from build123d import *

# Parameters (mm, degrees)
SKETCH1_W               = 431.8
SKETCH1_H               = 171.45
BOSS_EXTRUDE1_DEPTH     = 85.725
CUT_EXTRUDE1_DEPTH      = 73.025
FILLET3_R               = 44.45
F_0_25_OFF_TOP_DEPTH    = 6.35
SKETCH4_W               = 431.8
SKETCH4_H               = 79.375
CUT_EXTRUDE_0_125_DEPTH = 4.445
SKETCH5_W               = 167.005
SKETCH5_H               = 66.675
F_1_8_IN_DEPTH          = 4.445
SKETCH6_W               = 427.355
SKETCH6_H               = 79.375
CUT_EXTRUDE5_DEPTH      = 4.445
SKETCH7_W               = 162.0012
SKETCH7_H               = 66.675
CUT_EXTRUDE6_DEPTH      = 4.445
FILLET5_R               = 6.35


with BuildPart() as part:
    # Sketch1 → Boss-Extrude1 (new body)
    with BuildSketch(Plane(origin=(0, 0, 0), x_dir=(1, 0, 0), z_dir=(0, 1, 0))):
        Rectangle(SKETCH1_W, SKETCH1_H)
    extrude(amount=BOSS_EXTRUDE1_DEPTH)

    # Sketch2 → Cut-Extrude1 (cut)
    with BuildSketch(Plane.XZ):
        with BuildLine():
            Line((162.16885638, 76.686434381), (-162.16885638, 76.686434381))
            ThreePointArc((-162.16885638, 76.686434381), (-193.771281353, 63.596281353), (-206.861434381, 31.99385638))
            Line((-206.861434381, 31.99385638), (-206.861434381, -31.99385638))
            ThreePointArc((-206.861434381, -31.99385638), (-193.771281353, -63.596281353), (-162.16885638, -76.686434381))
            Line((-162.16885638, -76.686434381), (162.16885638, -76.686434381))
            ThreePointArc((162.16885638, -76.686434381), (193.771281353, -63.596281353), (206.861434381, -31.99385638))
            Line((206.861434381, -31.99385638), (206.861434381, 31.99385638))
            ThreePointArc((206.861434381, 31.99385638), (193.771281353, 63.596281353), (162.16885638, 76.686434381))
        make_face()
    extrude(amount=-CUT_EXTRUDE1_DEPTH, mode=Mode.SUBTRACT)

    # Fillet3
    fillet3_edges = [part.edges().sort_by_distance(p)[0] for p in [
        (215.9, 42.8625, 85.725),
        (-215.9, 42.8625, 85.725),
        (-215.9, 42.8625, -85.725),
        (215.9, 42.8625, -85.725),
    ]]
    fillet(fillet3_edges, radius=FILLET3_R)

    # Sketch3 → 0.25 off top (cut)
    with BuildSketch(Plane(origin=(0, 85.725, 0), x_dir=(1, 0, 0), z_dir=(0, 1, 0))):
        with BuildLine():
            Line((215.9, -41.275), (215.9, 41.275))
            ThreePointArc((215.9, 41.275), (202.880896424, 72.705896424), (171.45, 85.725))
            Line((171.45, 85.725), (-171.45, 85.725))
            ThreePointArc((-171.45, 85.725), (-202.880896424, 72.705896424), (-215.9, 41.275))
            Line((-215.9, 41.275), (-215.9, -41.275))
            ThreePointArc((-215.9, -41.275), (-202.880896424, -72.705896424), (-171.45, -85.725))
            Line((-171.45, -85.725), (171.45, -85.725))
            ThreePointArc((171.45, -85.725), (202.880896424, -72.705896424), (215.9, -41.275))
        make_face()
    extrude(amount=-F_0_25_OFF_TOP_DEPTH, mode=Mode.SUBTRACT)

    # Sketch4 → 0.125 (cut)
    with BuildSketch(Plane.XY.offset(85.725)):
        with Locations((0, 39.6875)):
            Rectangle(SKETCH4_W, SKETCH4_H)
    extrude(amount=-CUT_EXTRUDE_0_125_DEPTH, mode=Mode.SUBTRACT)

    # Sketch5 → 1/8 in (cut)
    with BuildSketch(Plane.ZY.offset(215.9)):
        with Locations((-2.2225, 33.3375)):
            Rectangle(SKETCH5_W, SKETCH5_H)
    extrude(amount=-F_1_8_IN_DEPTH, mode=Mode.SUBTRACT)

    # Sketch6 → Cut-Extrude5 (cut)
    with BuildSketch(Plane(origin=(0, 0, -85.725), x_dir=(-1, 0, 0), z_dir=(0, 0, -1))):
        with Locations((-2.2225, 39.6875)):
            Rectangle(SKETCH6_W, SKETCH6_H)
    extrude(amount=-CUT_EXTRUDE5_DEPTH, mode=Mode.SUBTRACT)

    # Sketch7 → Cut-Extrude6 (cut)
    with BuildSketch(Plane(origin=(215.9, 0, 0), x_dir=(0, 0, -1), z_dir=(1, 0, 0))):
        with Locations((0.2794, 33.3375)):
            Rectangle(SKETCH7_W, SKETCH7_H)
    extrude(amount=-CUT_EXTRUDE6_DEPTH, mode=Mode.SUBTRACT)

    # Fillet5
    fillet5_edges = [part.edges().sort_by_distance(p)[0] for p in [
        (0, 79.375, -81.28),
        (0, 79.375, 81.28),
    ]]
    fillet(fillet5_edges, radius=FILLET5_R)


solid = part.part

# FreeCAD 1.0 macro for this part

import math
import FreeCAD as App
import Part
import Sketcher
Q = App.Units.Quantity


def edges_at(feature, points):
    """Names of the edges that pass closest to the given points."""
    edges = feature.Shape.Edges
    near = lambda p: min(range(len(edges)), key=lambda i: edges[i].distToShape(Part.Vertex(*p))[0])
    return sorted({f"Edge{near(p) + 1}" for p in points})

doc = App.newDocument("Part")
body = doc.addObject("PartDesign::Body", "Body")

# Sketch on XZ plane
sketch1 = body.newObject("Sketcher::SketchObject", "Sketch")
sketch1.AttachmentSupport = (doc.getObject("XZ_Plane"), [""])
sketch1.MapMode = "FlatFace"
sketch1.addGeometry([
    Part.LineSegment(App.Vector(-216, -86, 0), App.Vector(-216, 86, 0)),
    Part.LineSegment(App.Vector(-216, 86, 0), App.Vector(216, 86, 0)),
    Part.LineSegment(App.Vector(216, 86, 0), App.Vector(216, -86, 0)),
    Part.LineSegment(App.Vector(216, -86, 0), App.Vector(-216, -86, 0)),
], False)
sketch1.addConstraint([
    Sketcher.Constraint("Coincident", 0, 2, 1, 1),
    Sketcher.Constraint("Coincident", 1, 2, 2, 1),
    Sketcher.Constraint("Coincident", 2, 2, 3, 1),
    Sketcher.Constraint("Coincident", 3, 2, 0, 1),
    Sketcher.Constraint("Vertical", 0),
    Sketcher.Constraint("Horizontal", 1),
    Sketcher.Constraint("Vertical", 2),
    Sketcher.Constraint("Horizontal", 3),
    Sketcher.Constraint("Symmetric", 0, 2, 2, 2, -1, 1),
    Sketcher.Constraint("DistanceX", 1, 1, 1, 2, Q("17 in")),
    Sketcher.Constraint("DistanceY", 0, 1, 0, 2, Q("6.75 in")),
])
pad1 = body.newObject("PartDesign::Pad", "Pad")
pad1.Profile = sketch1
pad1.Length = Q("3.375 in")
pad1.Reversed = True

# Sketch on XZ plane
sketch2 = body.newObject("Sketcher::SketchObject", "Sketch001")
sketch2.AttachmentSupport = (doc.getObject("XZ_Plane"), [""])
sketch2.MapMode = "FlatFace"
sketch2.addGeometry([
    Part.LineSegment(App.Vector(162, 77, 0), App.Vector(-162, 77, 0)),  # 0
    Part.ArcOfCircle(Part.Circle(App.Vector(-162, 32, 0), App.Vector(0, 0, 1), 45), math.radians(90), math.radians(180)),  # 1
    Part.LineSegment(App.Vector(-207, 32, 0), App.Vector(-207, -32, 0)),  # 2
    Part.ArcOfCircle(Part.Circle(App.Vector(-162, -32, 0), App.Vector(0, 0, 1), 45), math.radians(-180), math.radians(-90)),  # 3
    Part.LineSegment(App.Vector(-162, -77, 0), App.Vector(162, -77, 0)),  # 4
    Part.ArcOfCircle(Part.Circle(App.Vector(162, -32, 0), App.Vector(0, 0, 1), 45), math.radians(-90), math.radians(0)),  # 5
    Part.LineSegment(App.Vector(207, -32, 0), App.Vector(207, 32, 0)),  # 6
    Part.ArcOfCircle(Part.Circle(App.Vector(162, 32, 0), App.Vector(0, 0, 1), 45), math.radians(0), math.radians(90)),  # 7
], False)
sketch2.addConstraint([
    Sketcher.Constraint("Tangent", 0, 2, 1, 1),
    Sketcher.Constraint("Tangent", 1, 2, 2, 1),
    Sketcher.Constraint("Tangent", 2, 2, 3, 1),
    Sketcher.Constraint("Tangent", 3, 2, 4, 1),
    Sketcher.Constraint("Tangent", 4, 2, 5, 1),
    Sketcher.Constraint("Tangent", 5, 2, 6, 1),
    Sketcher.Constraint("Tangent", 6, 2, 7, 1),
    Sketcher.Constraint("Tangent", 7, 2, 0, 1),
    Sketcher.Constraint("Horizontal", 0),
    Sketcher.Constraint("Vertical", 2),
    Sketcher.Constraint("Horizontal", 4),
    Sketcher.Constraint("Vertical", 6),
    Sketcher.Constraint("Equal", 1, 3),
    Sketcher.Constraint("Equal", 3, 5),
    Sketcher.Constraint("Equal", 5, 7),
    Sketcher.Constraint("Symmetric", 1, 3, 5, 3, -1, 1),
    Sketcher.Constraint("Radius", 1, 44.692578),
    Sketcher.Constraint("DistanceX", 0, 2, 0, 1, 324.337713),
    Sketcher.Constraint("DistanceY", 2, 2, 2, 1, 63.987713),
])
pocket1 = body.newObject("PartDesign::Pocket", "Pocket")
pocket1.Profile = sketch2
pocket1.Length = Q("2.875 in")
doc.recompute()

fillet = body.newObject("PartDesign::Fillet", "Fillet")
fillet.Base = (pocket1, edges_at(pocket1, [
    (215.9, 42.862, 85.725),
    (-215.9, 42.862, 85.725),
    (-215.9, 42.862, -85.725),
    (215.9, 42.862, -85.725),
]))
fillet.Radius = Q("1.75 in")

# Sketch on XZ plane
sketch3 = body.newObject("Sketcher::SketchObject", "Sketch002")
sketch3.AttachmentSupport = (doc.getObject("XZ_Plane"), [""])
sketch3.MapMode = "FlatFace"
sketch3.AttachmentOffset = App.Placement(App.Vector(0, 0, -3.375 * 25.4), App.Rotation())
sketch3.addGeometry([
    Part.LineSegment(App.Vector(216, 41, 0), App.Vector(216, -41, 0)),  # 0
    Part.ArcOfCircle(Part.Circle(App.Vector(171, -41, 0), App.Vector(0, 0, 1), 44), math.radians(-90), math.radians(0)),  # 1
    Part.LineSegment(App.Vector(171, -86, 0), App.Vector(-171, -86, 0)),  # 2
    Part.ArcOfCircle(Part.Circle(App.Vector(-171, -41, 0), App.Vector(0, 0, 1), 44), math.radians(180), math.radians(270)),  # 3
    Part.LineSegment(App.Vector(-216, -41, 0), App.Vector(-216, 41, 0)),  # 4
    Part.ArcOfCircle(Part.Circle(App.Vector(-171, 41, 0), App.Vector(0, 0, 1), 44), math.radians(90), math.radians(180)),  # 5
    Part.LineSegment(App.Vector(-171, 86, 0), App.Vector(171, 86, 0)),  # 6
    Part.ArcOfCircle(Part.Circle(App.Vector(171, 41, 0), App.Vector(0, 0, 1), 44), math.radians(0), math.radians(90)),  # 7
], False)
sketch3.addConstraint([
    Sketcher.Constraint("Tangent", 0, 2, 1, 2),
    Sketcher.Constraint("Tangent", 1, 1, 2, 1),
    Sketcher.Constraint("Tangent", 2, 2, 3, 2),
    Sketcher.Constraint("Tangent", 3, 1, 4, 1),
    Sketcher.Constraint("Tangent", 4, 2, 5, 2),
    Sketcher.Constraint("Tangent", 5, 1, 6, 1),
    Sketcher.Constraint("Tangent", 6, 2, 7, 2),
    Sketcher.Constraint("Tangent", 7, 1, 0, 1),
    Sketcher.Constraint("Vertical", 0),
    Sketcher.Constraint("Horizontal", 2),
    Sketcher.Constraint("Vertical", 4),
    Sketcher.Constraint("Horizontal", 6),
    Sketcher.Constraint("Equal", 1, 3),
    Sketcher.Constraint("Equal", 3, 5),
    Sketcher.Constraint("Equal", 5, 7),
    Sketcher.Constraint("Symmetric", 1, 3, 5, 3, -1, 1),
    Sketcher.Constraint("Radius", 1, Q("1.75 in")),
    Sketcher.Constraint("DistanceX", 2, 2, 2, 1, Q("13.5 in")),
    Sketcher.Constraint("DistanceY", 1, 1, 7, 3, Q("5 in")),
])
pocket2 = body.newObject("PartDesign::Pocket", "Pocket001")
pocket2.Profile = sketch3
pocket2.Length = Q("0.25 in")
pocket2.Reversed = True

# Sketch on XY plane
sketch4 = body.newObject("Sketcher::SketchObject", "Sketch003")
sketch4.AttachmentSupport = (doc.getObject("XY_Plane"), [""])
sketch4.MapMode = "FlatFace"
sketch4.AttachmentOffset = App.Placement(App.Vector(0, 0, 3.375 * 25.4), App.Rotation())
sketch4.addGeometry([
    Part.LineSegment(App.Vector(-216, 79, 0), App.Vector(-216, 0, 0)),
    Part.LineSegment(App.Vector(-216, 0, 0), App.Vector(216, 0, 0)),
    Part.LineSegment(App.Vector(216, 0, 0), App.Vector(216, 79, 0)),
    Part.LineSegment(App.Vector(216, 79, 0), App.Vector(-216, 79, 0)),
], False)
sketch4.addConstraint([
    Sketcher.Constraint("Coincident", 0, 2, 1, 1),
    Sketcher.Constraint("Coincident", 1, 2, 2, 1),
    Sketcher.Constraint("Coincident", 2, 2, 3, 1),
    Sketcher.Constraint("Coincident", 3, 2, 0, 1),
    Sketcher.Constraint("Vertical", 0),
    Sketcher.Constraint("Horizontal", 1),
    Sketcher.Constraint("Vertical", 2),
    Sketcher.Constraint("Horizontal", 3),
    Sketcher.Constraint("Symmetric", 0, 2, 1, 2, -1, 1),
    Sketcher.Constraint("DistanceX", 1, 1, 1, 2, Q("17 in")),
    Sketcher.Constraint("DistanceY", 0, 2, 0, 1, Q("3.125 in")),
])
pocket3 = body.newObject("PartDesign::Pocket", "Pocket002")
pocket3.Profile = sketch4
pocket3.Length = Q("0.175 in")

# Sketch on YZ plane
sketch5 = body.newObject("Sketcher::SketchObject", "Sketch004")
sketch5.AttachmentSupport = (doc.getObject("YZ_Plane"), [""])
sketch5.MapMode = "FlatFace"
sketch5.AttachmentOffset = App.Placement(App.Vector(0, 0, -8.5 * 25.4), App.Rotation())
sketch5.addGeometry([
    Part.LineSegment(App.Vector(67, -86, 0), App.Vector(0, -86, 0)),
    Part.LineSegment(App.Vector(0, -86, 0), App.Vector(0, 81, 0)),
    Part.LineSegment(App.Vector(0, 81, 0), App.Vector(67, 81, 0)),
    Part.LineSegment(App.Vector(67, 81, 0), App.Vector(67, -86, 0)),
], False)
sketch5.addConstraint([
    Sketcher.Constraint("Coincident", 0, 2, 1, 1),
    Sketcher.Constraint("Coincident", 1, 2, 2, 1),
    Sketcher.Constraint("Coincident", 2, 2, 3, 1),
    Sketcher.Constraint("Coincident", 3, 2, 0, 1),
    Sketcher.Constraint("Horizontal", 0),
    Sketcher.Constraint("Vertical", 1),
    Sketcher.Constraint("Horizontal", 2),
    Sketcher.Constraint("Vertical", 3),
    Sketcher.Constraint("PointOnObject", 0, 2, -2),
    Sketcher.Constraint("DistanceY", -1, 1, 1, 2, Q("3.2 in")),
    Sketcher.Constraint("DistanceX", 0, 2, 0, 1, Q("2.625 in")),
    Sketcher.Constraint("DistanceY", 1, 1, 1, 2, Q("6.575 in")),
])
pocket4 = body.newObject("PartDesign::Pocket", "Pocket003")
pocket4.Profile = sketch5
pocket4.Length = Q("0.175 in")
pocket4.Reversed = True

# Sketch on XY plane
sketch6 = body.newObject("Sketcher::SketchObject", "Sketch005")
sketch6.AttachmentSupport = (doc.getObject("XY_Plane"), [""])
sketch6.MapMode = "FlatFace"
sketch6.AttachmentOffset = App.Placement(App.Vector(0, 0, -3.375 * 25.4), App.Rotation())
sketch6.addGeometry([
    Part.LineSegment(App.Vector(216, 79, 0), App.Vector(216, 0, 0)),
    Part.LineSegment(App.Vector(216, 0, 0), App.Vector(-211, 0, 0)),
    Part.LineSegment(App.Vector(-211, 0, 0), App.Vector(-211, 79, 0)),
    Part.LineSegment(App.Vector(-211, 79, 0), App.Vector(216, 79, 0)),
], False)
sketch6.addConstraint([
    Sketcher.Constraint("Coincident", 0, 2, 1, 1),
    Sketcher.Constraint("Coincident", 1, 2, 2, 1),
    Sketcher.Constraint("Coincident", 2, 2, 3, 1),
    Sketcher.Constraint("Coincident", 3, 2, 0, 1),
    Sketcher.Constraint("Vertical", 0),
    Sketcher.Constraint("Horizontal", 1),
    Sketcher.Constraint("Vertical", 2),
    Sketcher.Constraint("Horizontal", 3),
    Sketcher.Constraint("PointOnObject", 0, 2, -1),
    Sketcher.Constraint("DistanceX", -1, 1, 0, 2, Q("8.5 in")),
    Sketcher.Constraint("DistanceX", 1, 2, 1, 1, Q("16.825 in")),
    Sketcher.Constraint("DistanceY", 0, 2, 0, 1, Q("3.125 in")),
])
pocket5 = body.newObject("PartDesign::Pocket", "Pocket004")
pocket5.Profile = sketch6
pocket5.Length = Q("0.175 in")
pocket5.Reversed = True

# Sketch on YZ plane
sketch7 = body.newObject("Sketcher::SketchObject", "Sketch006")
sketch7.AttachmentSupport = (doc.getObject("YZ_Plane"), [""])
sketch7.MapMode = "FlatFace"
sketch7.AttachmentOffset = App.Placement(App.Vector(0, 0, 8.5 * 25.4), App.Rotation())
sketch7.addGeometry([
    Part.LineSegment(App.Vector(67, 81, 0), App.Vector(0, 81, 0)),
    Part.LineSegment(App.Vector(0, 81, 0), App.Vector(0, -81, 0)),
    Part.LineSegment(App.Vector(0, -81, 0), App.Vector(67, -81, 0)),
    Part.LineSegment(App.Vector(67, -81, 0), App.Vector(67, 81, 0)),
], False)
sketch7.addConstraint([
    Sketcher.Constraint("Coincident", 0, 2, 1, 1),
    Sketcher.Constraint("Coincident", 1, 2, 2, 1),
    Sketcher.Constraint("Coincident", 2, 2, 3, 1),
    Sketcher.Constraint("Coincident", 3, 2, 0, 1),
    Sketcher.Constraint("Horizontal", 0),
    Sketcher.Constraint("Vertical", 1),
    Sketcher.Constraint("Horizontal", 2),
    Sketcher.Constraint("Vertical", 3),
    Sketcher.Constraint("PointOnObject", 0, 2, -2),
    Sketcher.Constraint("DistanceY", 1, 2, -1, 1, Q("3.2 in")),
    Sketcher.Constraint("DistanceX", 0, 2, 0, 1, Q("2.625 in")),
    Sketcher.Constraint("DistanceY", 1, 2, 1, 1, Q("6.378 in")),
])
pocket6 = body.newObject("PartDesign::Pocket", "Pocket005")
pocket6.Profile = sketch7
pocket6.Length = Q("0.175 in")
doc.recompute()

fillet2 = body.newObject("PartDesign::Fillet", "Fillet001")
fillet2.Base = (pocket6, edges_at(pocket6, [(0, 79.375, -81.28), (0, 79.375, 81.28)]))
fillet2.Radius = Q("0.25 in")

doc.recompute()
